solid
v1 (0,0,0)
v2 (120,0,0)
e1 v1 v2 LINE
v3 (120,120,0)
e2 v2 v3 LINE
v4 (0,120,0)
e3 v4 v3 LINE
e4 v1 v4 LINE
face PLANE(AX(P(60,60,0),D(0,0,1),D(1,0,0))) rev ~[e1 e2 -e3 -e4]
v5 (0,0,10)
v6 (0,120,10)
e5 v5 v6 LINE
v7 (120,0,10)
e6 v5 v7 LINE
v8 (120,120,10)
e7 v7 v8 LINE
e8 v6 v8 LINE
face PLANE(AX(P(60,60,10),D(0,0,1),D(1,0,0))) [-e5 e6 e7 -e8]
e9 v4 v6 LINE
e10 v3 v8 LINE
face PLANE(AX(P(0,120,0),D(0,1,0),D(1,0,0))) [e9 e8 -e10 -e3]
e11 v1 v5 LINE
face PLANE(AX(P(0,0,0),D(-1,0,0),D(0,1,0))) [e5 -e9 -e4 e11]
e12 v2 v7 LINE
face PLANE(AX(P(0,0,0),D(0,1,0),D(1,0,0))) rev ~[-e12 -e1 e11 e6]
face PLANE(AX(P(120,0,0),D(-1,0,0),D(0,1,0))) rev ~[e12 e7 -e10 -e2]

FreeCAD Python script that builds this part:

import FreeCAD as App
import Part
import Sketcher

V = App.Vector
Q = App.Units.Quantity

doc = App.newDocument("Part")
body = doc.addObject("PartDesign::Body", "Body")

sketch1 = doc.addObject("Sketcher::SketchObject", "Sketch")
body.addObject(sketch1)
sketch1.AttachmentSupport = (doc.XY_Plane, [""])
sketch1.MapMode = "FlatFace"
sketch1.addGeometry([
    Part.LineSegment(V(0, 120, 0), V(0, 0, 0)),
    Part.LineSegment(V(0, 0, 0), V(120, 0, 0)),
    Part.LineSegment(V(120, 0, 0), V(120, 120, 0)),
    Part.LineSegment(V(120, 120, 0), V(0, 120, 0)),
], False)
sketch1.addConstraint([
    Sketcher.Constraint("Coincident", 0, 2, 1, 1),
    Sketcher.Constraint("Coincident", 1, 2, 2, 1),
    Sketcher.Constraint("Coincident", 2, 2, 3, 1),
    Sketcher.Constraint("Coincident", 3, 2, 0, 1),
    Sketcher.Constraint("Vertical", 0),
    Sketcher.Constraint("Horizontal", 1),
    Sketcher.Constraint("Vertical", 2),
    Sketcher.Constraint("Horizontal", 3),
    Sketcher.Constraint("Coincident", 0, 2, -1, 1),
    Sketcher.Constraint("Equal", 3, 0),
    Sketcher.Constraint("DistanceX", 1, 1, 1, 2, Q("120 mm")),
])
pad1 = doc.addObject("PartDesign::Pad", "Pad")
body.addObject(pad1)
pad1.Profile = sketch1
pad1.Length = 10

doc.recompute()
